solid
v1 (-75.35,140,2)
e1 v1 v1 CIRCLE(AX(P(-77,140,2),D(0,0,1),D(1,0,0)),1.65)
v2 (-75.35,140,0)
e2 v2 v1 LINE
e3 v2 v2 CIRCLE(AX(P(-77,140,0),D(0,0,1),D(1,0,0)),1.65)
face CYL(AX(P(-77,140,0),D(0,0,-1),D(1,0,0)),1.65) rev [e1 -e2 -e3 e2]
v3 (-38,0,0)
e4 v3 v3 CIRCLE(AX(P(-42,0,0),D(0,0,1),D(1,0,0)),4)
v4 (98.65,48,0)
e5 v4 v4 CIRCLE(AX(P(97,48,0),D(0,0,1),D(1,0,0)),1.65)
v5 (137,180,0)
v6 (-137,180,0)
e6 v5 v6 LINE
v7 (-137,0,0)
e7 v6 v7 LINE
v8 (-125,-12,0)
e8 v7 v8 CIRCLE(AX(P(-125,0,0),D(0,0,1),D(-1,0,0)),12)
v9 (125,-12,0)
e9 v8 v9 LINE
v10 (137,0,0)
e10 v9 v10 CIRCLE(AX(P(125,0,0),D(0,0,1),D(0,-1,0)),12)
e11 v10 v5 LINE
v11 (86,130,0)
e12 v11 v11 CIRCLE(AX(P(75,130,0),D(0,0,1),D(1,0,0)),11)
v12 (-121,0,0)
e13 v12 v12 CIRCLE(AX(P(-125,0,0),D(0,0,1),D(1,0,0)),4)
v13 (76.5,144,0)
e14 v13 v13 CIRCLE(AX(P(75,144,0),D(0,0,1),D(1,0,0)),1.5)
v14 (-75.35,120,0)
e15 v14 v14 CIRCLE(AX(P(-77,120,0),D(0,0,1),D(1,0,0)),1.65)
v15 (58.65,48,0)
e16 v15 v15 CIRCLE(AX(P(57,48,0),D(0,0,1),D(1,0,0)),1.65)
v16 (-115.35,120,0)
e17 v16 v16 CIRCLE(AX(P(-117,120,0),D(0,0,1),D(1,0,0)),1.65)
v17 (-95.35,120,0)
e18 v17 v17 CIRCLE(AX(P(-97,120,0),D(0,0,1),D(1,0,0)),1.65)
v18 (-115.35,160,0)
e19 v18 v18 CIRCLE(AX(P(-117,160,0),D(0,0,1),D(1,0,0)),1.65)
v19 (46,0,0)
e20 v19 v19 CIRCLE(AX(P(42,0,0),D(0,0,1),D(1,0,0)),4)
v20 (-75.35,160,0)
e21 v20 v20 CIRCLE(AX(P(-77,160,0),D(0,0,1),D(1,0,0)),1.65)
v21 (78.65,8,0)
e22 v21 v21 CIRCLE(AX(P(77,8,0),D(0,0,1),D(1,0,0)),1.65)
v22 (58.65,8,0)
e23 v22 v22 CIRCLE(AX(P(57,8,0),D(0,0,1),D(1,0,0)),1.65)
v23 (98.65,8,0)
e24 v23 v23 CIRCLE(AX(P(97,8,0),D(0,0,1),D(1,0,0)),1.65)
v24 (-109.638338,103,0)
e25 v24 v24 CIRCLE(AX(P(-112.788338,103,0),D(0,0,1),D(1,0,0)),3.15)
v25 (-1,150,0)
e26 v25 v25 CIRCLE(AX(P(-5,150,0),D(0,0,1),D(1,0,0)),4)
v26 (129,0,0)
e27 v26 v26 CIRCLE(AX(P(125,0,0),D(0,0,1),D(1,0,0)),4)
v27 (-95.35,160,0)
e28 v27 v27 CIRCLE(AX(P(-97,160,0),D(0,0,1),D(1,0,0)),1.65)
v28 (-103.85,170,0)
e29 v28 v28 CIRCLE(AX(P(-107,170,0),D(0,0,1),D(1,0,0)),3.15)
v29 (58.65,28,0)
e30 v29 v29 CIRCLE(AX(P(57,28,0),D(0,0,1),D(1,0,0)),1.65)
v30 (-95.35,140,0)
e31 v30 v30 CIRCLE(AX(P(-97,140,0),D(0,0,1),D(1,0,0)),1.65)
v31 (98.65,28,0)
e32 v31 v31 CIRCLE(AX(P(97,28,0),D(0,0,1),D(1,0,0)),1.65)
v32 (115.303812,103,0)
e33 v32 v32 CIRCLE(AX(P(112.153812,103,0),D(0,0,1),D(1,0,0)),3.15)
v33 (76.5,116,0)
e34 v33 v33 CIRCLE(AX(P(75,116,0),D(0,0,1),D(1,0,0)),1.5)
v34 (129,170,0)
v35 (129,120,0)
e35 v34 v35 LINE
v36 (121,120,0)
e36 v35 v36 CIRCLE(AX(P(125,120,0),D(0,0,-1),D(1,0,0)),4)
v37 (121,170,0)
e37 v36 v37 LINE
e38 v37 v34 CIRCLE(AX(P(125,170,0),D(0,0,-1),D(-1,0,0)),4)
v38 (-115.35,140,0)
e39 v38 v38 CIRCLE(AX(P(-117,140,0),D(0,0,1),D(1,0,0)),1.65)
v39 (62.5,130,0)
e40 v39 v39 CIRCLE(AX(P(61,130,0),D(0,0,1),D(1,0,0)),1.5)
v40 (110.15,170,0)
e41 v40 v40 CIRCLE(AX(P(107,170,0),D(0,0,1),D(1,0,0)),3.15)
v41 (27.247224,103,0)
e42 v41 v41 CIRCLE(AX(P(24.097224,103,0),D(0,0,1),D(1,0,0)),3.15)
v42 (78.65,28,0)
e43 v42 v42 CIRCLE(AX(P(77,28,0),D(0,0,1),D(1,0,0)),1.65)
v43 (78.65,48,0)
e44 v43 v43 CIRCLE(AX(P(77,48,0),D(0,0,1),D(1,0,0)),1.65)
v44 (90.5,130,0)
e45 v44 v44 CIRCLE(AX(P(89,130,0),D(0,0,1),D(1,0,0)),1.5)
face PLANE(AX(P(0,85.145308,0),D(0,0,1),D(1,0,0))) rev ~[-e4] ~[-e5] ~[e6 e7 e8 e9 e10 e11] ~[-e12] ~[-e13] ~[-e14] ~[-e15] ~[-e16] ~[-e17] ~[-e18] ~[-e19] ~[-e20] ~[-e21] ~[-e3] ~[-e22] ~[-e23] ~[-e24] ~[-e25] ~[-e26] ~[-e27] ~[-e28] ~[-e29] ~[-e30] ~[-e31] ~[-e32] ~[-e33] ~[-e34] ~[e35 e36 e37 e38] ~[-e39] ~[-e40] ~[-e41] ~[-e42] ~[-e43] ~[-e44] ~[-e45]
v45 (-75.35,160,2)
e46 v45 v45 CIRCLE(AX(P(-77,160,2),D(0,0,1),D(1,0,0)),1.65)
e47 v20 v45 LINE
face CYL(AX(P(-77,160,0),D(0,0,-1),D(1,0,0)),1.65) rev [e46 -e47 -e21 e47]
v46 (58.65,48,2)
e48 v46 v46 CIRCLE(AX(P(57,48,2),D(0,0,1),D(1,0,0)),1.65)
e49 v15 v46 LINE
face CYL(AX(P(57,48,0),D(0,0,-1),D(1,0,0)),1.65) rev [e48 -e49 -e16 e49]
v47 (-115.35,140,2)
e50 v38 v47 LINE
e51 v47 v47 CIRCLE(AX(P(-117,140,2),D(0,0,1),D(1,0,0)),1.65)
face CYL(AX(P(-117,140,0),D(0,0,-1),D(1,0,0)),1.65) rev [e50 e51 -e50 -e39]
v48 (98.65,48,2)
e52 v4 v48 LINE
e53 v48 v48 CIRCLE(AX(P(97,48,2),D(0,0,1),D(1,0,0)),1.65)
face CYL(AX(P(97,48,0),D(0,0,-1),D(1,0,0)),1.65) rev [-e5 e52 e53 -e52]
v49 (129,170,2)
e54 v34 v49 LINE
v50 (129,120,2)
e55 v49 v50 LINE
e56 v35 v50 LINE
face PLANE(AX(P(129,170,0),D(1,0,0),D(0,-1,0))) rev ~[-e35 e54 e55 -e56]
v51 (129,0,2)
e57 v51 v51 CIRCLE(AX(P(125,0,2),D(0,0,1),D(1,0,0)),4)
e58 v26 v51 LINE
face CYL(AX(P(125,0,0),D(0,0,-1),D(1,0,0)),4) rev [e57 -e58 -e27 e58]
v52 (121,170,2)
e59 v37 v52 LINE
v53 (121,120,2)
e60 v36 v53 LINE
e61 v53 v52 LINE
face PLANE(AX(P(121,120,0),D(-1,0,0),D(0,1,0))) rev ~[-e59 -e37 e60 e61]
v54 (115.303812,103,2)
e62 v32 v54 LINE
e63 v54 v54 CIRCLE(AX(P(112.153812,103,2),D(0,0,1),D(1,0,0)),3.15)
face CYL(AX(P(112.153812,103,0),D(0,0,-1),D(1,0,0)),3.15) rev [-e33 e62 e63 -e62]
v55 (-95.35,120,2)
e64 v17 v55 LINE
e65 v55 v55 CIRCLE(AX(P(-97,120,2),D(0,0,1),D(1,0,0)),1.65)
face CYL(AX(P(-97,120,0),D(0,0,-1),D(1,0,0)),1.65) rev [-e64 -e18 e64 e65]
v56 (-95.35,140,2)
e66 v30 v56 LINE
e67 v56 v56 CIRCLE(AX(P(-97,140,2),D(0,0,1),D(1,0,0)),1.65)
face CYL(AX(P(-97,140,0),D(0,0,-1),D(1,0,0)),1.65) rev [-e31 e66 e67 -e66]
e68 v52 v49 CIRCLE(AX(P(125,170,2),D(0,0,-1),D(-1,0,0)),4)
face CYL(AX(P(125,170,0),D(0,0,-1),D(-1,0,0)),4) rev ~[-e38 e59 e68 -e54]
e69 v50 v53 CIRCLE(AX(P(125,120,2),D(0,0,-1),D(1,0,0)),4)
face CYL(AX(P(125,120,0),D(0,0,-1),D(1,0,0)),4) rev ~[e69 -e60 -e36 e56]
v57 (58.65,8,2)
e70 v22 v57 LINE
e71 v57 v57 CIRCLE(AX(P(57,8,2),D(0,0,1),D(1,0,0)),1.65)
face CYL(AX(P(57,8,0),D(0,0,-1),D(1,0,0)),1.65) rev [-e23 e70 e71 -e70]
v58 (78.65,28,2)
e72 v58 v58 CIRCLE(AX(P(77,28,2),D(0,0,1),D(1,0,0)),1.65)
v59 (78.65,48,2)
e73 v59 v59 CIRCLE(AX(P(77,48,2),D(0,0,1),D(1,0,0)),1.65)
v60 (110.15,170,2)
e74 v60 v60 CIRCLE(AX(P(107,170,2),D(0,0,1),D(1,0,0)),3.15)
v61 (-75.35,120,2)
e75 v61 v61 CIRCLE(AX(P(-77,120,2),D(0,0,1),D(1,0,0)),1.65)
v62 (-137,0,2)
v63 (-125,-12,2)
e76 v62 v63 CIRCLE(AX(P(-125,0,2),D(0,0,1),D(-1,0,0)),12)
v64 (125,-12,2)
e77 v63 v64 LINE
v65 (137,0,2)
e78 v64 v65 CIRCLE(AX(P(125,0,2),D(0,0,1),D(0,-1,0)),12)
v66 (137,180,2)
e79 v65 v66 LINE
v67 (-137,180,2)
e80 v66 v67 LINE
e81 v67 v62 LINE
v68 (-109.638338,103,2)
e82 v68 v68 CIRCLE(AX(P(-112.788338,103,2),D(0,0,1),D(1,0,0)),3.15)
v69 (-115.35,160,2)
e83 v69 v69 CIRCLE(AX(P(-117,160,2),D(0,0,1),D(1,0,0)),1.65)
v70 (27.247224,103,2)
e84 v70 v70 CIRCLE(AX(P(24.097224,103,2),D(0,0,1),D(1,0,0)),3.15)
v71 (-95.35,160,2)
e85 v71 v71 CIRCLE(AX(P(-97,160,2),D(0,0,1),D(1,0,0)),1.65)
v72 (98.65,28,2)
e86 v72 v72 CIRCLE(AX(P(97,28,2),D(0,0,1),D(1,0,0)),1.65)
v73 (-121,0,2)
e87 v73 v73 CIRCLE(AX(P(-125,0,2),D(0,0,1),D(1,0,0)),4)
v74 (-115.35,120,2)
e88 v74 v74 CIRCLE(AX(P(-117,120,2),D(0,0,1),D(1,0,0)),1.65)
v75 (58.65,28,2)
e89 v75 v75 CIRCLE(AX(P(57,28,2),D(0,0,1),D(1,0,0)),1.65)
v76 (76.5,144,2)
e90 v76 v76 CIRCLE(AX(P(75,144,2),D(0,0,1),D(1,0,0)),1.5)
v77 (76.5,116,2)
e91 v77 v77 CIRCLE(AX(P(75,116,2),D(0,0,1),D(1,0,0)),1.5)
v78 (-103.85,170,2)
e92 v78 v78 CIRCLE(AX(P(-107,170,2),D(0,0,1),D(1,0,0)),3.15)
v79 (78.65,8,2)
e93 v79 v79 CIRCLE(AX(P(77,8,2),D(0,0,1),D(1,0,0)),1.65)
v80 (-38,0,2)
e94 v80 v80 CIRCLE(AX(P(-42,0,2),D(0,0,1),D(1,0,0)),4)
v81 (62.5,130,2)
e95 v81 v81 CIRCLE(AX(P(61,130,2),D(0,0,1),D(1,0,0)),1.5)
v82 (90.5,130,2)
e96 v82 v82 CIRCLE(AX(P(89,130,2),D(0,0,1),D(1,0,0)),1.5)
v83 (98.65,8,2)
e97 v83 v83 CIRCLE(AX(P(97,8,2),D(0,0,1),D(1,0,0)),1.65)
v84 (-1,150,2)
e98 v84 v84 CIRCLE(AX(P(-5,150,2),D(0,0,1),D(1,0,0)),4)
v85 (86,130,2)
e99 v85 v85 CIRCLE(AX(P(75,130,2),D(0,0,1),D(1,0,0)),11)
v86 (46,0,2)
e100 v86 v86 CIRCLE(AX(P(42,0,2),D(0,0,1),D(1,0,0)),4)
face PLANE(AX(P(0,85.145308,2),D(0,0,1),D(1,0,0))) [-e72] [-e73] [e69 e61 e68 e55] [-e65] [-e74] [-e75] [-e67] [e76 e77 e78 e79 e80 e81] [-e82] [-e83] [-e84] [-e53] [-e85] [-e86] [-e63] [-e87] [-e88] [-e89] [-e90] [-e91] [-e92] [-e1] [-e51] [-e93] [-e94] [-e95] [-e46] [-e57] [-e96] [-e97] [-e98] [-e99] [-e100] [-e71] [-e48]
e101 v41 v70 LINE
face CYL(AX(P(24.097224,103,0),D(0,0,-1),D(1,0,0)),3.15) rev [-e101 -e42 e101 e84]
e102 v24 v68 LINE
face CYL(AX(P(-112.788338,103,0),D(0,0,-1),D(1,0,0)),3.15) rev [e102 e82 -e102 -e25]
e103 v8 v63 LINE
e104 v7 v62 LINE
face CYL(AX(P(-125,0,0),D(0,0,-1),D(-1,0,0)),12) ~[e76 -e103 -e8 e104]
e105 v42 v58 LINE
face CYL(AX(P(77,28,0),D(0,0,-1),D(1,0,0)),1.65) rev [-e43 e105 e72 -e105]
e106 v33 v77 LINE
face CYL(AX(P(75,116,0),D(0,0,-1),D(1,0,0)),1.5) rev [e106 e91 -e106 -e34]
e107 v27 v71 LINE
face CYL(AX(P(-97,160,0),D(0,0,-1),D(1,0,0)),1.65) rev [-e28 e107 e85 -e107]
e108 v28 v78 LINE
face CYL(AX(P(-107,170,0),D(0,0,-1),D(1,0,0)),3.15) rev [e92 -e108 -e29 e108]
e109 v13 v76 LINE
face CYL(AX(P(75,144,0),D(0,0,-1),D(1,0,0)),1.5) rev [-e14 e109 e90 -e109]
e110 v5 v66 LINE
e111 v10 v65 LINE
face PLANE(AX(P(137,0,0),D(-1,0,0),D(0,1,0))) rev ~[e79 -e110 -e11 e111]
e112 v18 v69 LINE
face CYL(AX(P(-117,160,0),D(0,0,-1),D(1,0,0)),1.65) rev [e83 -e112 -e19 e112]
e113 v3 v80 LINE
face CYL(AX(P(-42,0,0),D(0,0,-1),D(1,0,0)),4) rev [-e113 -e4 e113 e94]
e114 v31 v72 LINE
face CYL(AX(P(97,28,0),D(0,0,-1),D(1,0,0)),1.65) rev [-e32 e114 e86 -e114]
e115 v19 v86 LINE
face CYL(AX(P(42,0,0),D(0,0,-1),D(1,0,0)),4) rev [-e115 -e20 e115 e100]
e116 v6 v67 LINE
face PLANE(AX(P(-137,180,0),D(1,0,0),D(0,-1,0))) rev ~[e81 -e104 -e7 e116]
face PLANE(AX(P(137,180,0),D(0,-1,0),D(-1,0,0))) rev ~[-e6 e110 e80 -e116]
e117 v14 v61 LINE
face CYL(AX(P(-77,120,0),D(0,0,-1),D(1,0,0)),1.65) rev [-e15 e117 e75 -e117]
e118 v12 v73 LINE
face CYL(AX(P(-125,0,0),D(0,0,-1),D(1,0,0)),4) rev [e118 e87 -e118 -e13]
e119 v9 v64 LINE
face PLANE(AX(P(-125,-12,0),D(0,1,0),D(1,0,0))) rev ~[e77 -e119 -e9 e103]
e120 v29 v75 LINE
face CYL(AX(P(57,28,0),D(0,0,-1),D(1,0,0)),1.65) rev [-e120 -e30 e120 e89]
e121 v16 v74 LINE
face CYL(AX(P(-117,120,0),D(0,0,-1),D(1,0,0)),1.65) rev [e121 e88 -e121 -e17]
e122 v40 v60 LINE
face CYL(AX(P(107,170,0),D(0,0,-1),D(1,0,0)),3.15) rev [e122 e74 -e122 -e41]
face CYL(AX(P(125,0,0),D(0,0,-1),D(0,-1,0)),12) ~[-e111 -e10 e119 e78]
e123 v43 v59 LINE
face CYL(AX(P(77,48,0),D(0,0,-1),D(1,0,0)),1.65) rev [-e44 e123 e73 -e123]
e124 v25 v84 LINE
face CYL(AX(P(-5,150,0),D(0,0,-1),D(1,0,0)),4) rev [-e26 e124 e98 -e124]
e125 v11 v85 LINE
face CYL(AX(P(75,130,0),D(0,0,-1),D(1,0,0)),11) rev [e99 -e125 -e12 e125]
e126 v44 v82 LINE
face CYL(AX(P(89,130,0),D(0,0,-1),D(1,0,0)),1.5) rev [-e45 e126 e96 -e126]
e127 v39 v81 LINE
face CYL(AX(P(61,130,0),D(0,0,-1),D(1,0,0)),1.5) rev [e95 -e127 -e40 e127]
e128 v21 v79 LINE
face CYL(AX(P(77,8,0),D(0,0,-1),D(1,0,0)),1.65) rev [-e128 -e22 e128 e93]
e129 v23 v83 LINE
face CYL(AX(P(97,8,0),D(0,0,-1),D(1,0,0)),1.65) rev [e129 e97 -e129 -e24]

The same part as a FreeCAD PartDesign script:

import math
import FreeCAD as App
import Part
import Sketcher
from FreeCAD import Vector

doc = App.newDocument("Part")
body = doc.addObject("PartDesign::Body", "Body")

# Sketch on XY plane
sketch1 = body.newObject("Sketcher::SketchObject", "Sketch")
sketch1.AttachmentSupport = (doc.getObject("XY_Plane"), [""])
sketch1.MapMode = "FlatFace"
sketch1.addGeometry([
    Part.ArcOfCircle(Part.Circle(Vector(-125, 0, 0), Vector(0, 0, 1), 12), math.radians(-180), math.radians(-90)),  # 0
    Part.LineSegment(Vector(-125, -12, 0), Vector(125, -12, 0)),  # 1
    Part.ArcOfCircle(Part.Circle(Vector(125, 0, 0), Vector(0, 0, 1), 12), math.radians(-90), math.radians(0)),  # 2
    Part.LineSegment(Vector(137, 0, 0), Vector(137, 180, 0)),  # 3
    Part.LineSegment(Vector(137, 180, 0), Vector(-137, 180, 0)),  # 4
    Part.LineSegment(Vector(-137, 180, 0), Vector(-137, 0, 0)),  # 5
    Part.Circle(Vector(-125, 0, 0), Vector(0, 0, 1), 4),  # 6
    Part.Circle(Vector(-42, 0, 0), Vector(0, 0, 1), 4),  # 7
    Part.Circle(Vector(42, 0, 0), Vector(0, 0, 1), 4),  # 8
    Part.Circle(Vector(57, 8, 0), Vector(0, 0, 1), 1.6),  # 9
    Part.Circle(Vector(57, 28, 0), Vector(0, 0, 1), 1.6),  # 10
    Part.Circle(Vector(77, 8, 0), Vector(0, 0, 1), 1.6),  # 11
    Part.Circle(Vector(125, 0, 0), Vector(0, 0, 1), 4),  # 12
    Part.Circle(Vector(97, 8, 0), Vector(0, 0, 1), 1.6),  # 13
    Part.Circle(Vector(77, 28, 0), Vector(0, 0, 1), 1.6),  # 14
    Part.Circle(Vector(97, 28, 0), Vector(0, 0, 1), 1.6),  # 15
    Part.Circle(Vector(57, 48, 0), Vector(0, 0, 1), 1.6),  # 16
    Part.Circle(Vector(77, 48, 0), Vector(0, 0, 1), 1.6),  # 17
    Part.Circle(Vector(97, 48, 0), Vector(0, 0, 1), 1.6),  # 18
    Part.Circle(Vector(-112.8, 103, 0), Vector(0, 0, 1), 3.1),  # 19
    Part.Circle(Vector(-117, 120, 0), Vector(0, 0, 1), 1.6),  # 20
    Part.Circle(Vector(-97, 120, 0), Vector(0, 0, 1), 1.6),  # 21
    Part.Circle(Vector(-77, 120, 0), Vector(0, 0, 1), 1.6),  # 22
    Part.Circle(Vector(-117, 140, 0), Vector(0, 0, 1), 1.6),  # 23
    Part.Circle(Vector(-97, 140, 0), Vector(0, 0, 1), 1.6),  # 24
    Part.Circle(Vector(-77, 140, 0), Vector(0, 0, 1), 1.6),  # 25
    Part.Circle(Vector(-117, 160, 0), Vector(0, 0, 1), 1.6),  # 26
    Part.Circle(Vector(-97, 160, 0), Vector(0, 0, 1), 1.6),  # 27
    Part.Circle(Vector(-107, 170, 0), Vector(0, 0, 1), 3.1),  # 28
    Part.Circle(Vector(-77, 160, 0), Vector(0, 0, 1), 1.6),  # 29
    Part.Circle(Vector(-5, 150, 0), Vector(0, 0, 1), 4),  # 30
    Part.Circle(Vector(24.1, 103, 0), Vector(0, 0, 1), 3.1),  # 31
    Part.Circle(Vector(112.2, 103, 0), Vector(0, 0, 1), 3.1),  # 32
    Part.Circle(Vector(75, 116, 0), Vector(0, 0, 1), 1.5),  # 33
    Part.Circle(Vector(61, 130, 0), Vector(0, 0, 1), 1.5),  # 34
    Part.Circle(Vector(75, 130, 0), Vector(0, 0, 1), 11),  # 35
    Part.Circle(Vector(89, 130, 0), Vector(0, 0, 1), 1.5),  # 36
    Part.Circle(Vector(75, 144, 0), Vector(0, 0, 1), 1.5),  # 37
    Part.LineSegment(Vector(129, 170, 0), Vector(129, 120, 0)),  # 38
    Part.ArcOfCircle(Part.Circle(Vector(125, 120, 0), Vector(0, 0, 1), 4), math.radians(180), math.radians(360)),  # 39
    Part.LineSegment(Vector(121, 120, 0), Vector(121, 170, 0)),  # 40
    Part.ArcOfCircle(Part.Circle(Vector(125, 170, 0), Vector(0, 0, 1), 4), math.radians(0), math.radians(180)),  # 41
    Part.Circle(Vector(107, 170, 0), Vector(0, 0, 1), 3.1),  # 42
], False)
sketch1.addConstraint([
    Sketcher.Constraint("Tangent", 0, 2, 1, 1),
    Sketcher.Constraint("Tangent", 1, 2, 2, 1),
    Sketcher.Constraint("Tangent", 2, 2, 3, 1),
    Sketcher.Constraint("Coincident", 3, 2, 4, 1),
    Sketcher.Constraint("Coincident", 4, 2, 5, 1),
    Sketcher.Constraint("Tangent", 5, 2, 0, 1),
    Sketcher.Constraint("Tangent", 38, 2, 39, 2),
    Sketcher.Constraint("Tangent", 39, 1, 40, 1),
    Sketcher.Constraint("Tangent", 40, 2, 41, 2),
    Sketcher.Constraint("Tangent", 41, 1, 38, 1),
    Sketcher.Constraint("Horizontal", 1),
    Sketcher.Constraint("Vertical", 3),
    Sketcher.Constraint("Horizontal", 4),
    Sketcher.Constraint("Vertical", 5),
    Sketcher.Constraint("Vertical", 38),
    Sketcher.Constraint("Vertical", 40),
    Sketcher.Constraint("Coincident", 6, 3, 0, 3),
    Sketcher.Constraint("Coincident", 12, 3, 2, 3),
    Sketcher.Constraint("Equal", 0, 2),
    Sketcher.Constraint("Equal", 6, 7),
    Sketcher.Constraint("Equal", 7, 8),
    Sketcher.Constraint("Equal", 9, 10),
    Sketcher.Constraint("Equal", 10, 11),
    Sketcher.Constraint("Equal", 8, 12),
    Sketcher.Constraint("Equal", 11, 13),
    Sketcher.Constraint("Equal", 13, 14),
    Sketcher.Constraint("Equal", 14, 15),
    Sketcher.Constraint("Equal", 15, 16),
    Sketcher.Constraint("Equal", 16, 17),
    Sketcher.Constraint("Equal", 17, 18),
    Sketcher.Constraint("Equal", 18, 20),
    Sketcher.Constraint("Equal", 20, 21),
    Sketcher.Constraint("Equal", 21, 22),
    Sketcher.Constraint("Equal", 22, 23),
    Sketcher.Constraint("Equal", 23, 24),
    Sketcher.Constraint("Equal", 24, 25),
    Sketcher.Constraint("Equal", 25, 26),
    Sketcher.Constraint("Equal", 26, 27),
    Sketcher.Constraint("Equal", 19, 28),
    Sketcher.Constraint("Equal", 27, 29),
    Sketcher.Constraint("Equal", 12, 30),
    Sketcher.Constraint("Equal", 28, 31),
    Sketcher.Constraint("Equal", 31, 32),
    Sketcher.Constraint("Equal", 33, 34),
    Sketcher.Constraint("Equal", 34, 36),
    Sketcher.Constraint("Equal", 36, 37),
    Sketcher.Constraint("Equal", 30, 39),
    Sketcher.Constraint("Equal", 32, 42),
    Sketcher.Constraint("Symmetric", 0, 3, 2, 3, -1, 1),
    Sketcher.Constraint("Symmetric", 7, 3, 8, 3, -1, 1),
    Sketcher.Constraint("Symmetric", 28, 3, 42, 3, -2),
    Sketcher.Constraint("PointOnObject", 7, 3, -1),
    Sketcher.Constraint("Horizontal", 9, 3, 11, 3),
    Sketcher.Constraint("Horizontal", 11, 3, 13, 3),
    Sketcher.Constraint("Horizontal", 10, 3, 14, 3),
    Sketcher.Constraint("Horizontal", 14, 3, 15, 3),
    Sketcher.Constraint("Horizontal", 16, 3, 17, 3),
    Sketcher.Constraint("Horizontal", 17, 3, 18, 3),
    Sketcher.Constraint("Horizontal", 20, 3, 21, 3),
    Sketcher.Constraint("Horizontal", 21, 3, 22, 3),
    Sketcher.Constraint("Horizontal", 23, 3, 24, 3),
    Sketcher.Constraint("Horizontal", 24, 3, 25, 3),
    Sketcher.Constraint("Horizontal", 26, 3, 27, 3),
    Sketcher.Constraint("Horizontal", 27, 3, 29, 3),
    Sketcher.Constraint("Horizontal", 19, 3, 31, 3),
    Sketcher.Constraint("Horizontal", 31, 3, 32, 3),
    Sketcher.Constraint("Horizontal", 34, 3, 35, 3),
    Sketcher.Constraint("Horizontal", 35, 3, 36, 3),
    Sketcher.Constraint("Horizontal", 22, 3, 39, 3),
    Sketcher.Constraint("Horizontal", 28, 3, 41, 3),
    Sketcher.Constraint("Vertical", 9, 3, 10, 3),
    Sketcher.Constraint("Vertical", 11, 3, 14, 3),
    Sketcher.Constraint("Vertical", 13, 3, 15, 3),
    Sketcher.Constraint("Vertical", 10, 3, 16, 3),
    Sketcher.Constraint("Vertical", 14, 3, 17, 3),
    Sketcher.Constraint("Vertical", 15, 3, 18, 3),
    Sketcher.Constraint("Vertical", 20, 3, 23, 3),
    Sketcher.Constraint("Vertical", 21, 3, 24, 3),
    Sketcher.Constraint("Vertical", 22, 3, 25, 3),
    Sketcher.Constraint("Vertical", 23, 3, 26, 3),
    Sketcher.Constraint("Vertical", 24, 3, 27, 3),
    Sketcher.Constraint("Vertical", 25, 3, 29, 3),
    Sketcher.Constraint("Vertical", 33, 3, 35, 3),
    Sketcher.Constraint("Vertical", 35, 3, 37, 3),
    Sketcher.Constraint("Vertical", 12, 3, 39, 3),
    Sketcher.Constraint("Diameter", 6, 8.0),
    Sketcher.Constraint("Diameter", 33, 3.0),
    Sketcher.Constraint("Diameter", 35, 22.0),
    Sketcher.Constraint("Radius", 0, 12.0),
    Sketcher.Constraint("Diameter", 9, 3.3),
    Sketcher.Constraint("Diameter", 19, 6.3),
    Sketcher.Constraint("DistanceX", 1, 1, 1, 2, 250.0),
    Sketcher.Constraint("DistanceY", 3, 1, 3, 2, 180.0),
    Sketcher.Constraint("DistanceY", 38, 2, 38, 1, 50.0),
    Sketcher.Constraint("DistanceX", 7, 3, -1, 1, 42.0),
    Sketcher.Constraint("DistanceX", -1, 1, 9, 3, 57.0),
    Sketcher.Constraint("DistanceY", -1, 1, 9, 3, 8.0),
    Sketcher.Constraint("DistanceY", -1, 1, 10, 3, 28.0),
    Sketcher.Constraint("DistanceX", -1, 1, 11, 3, 77.0),
    Sketcher.Constraint("DistanceX", -1, 1, 13, 3, 97.0),
    Sketcher.Constraint("DistanceY", -1, 1, 16, 3, 48.0),
    Sketcher.Constraint("DistanceY", -1, 1, 19, 3, 103.0),
    Sketcher.Constraint("DistanceX", 20, 3, -1, 1, 117.0),
    Sketcher.Constraint("DistanceY", -1, 1, 20, 3, 120.0),
    Sketcher.Constraint("DistanceX", 21, 3, -1, 1, 97.0),
    Sketcher.Constraint("DistanceX", 22, 3, -1, 1, 77.0),
    Sketcher.Constraint("DistanceY", -1, 1, 23, 3, 140.0),
    Sketcher.Constraint("DistanceY", -1, 1, 26, 3, 160.0),
    Sketcher.Constraint("DistanceX", 28, 3, -1, 1, 107.0),
    Sketcher.Constraint("DistanceX", 30, 3, -1, 1, 5.0),
    Sketcher.Constraint("DistanceY", -1, 1, 30, 3, 150.0),
    Sketcher.Constraint("DistanceX", -1, 1, 33, 3, 75.0),
    Sketcher.Constraint("DistanceY", -1, 1, 33, 3, 116.0),
    Sketcher.Constraint("DistanceX", -1, 1, 34, 3, 61.0),
    Sketcher.Constraint("DistanceY", -1, 1, 34, 3, 130.0),
    Sketcher.Constraint("DistanceX", -1, 1, 36, 3, 89.0),
    Sketcher.Constraint("DistanceY", -1, 1, 37, 3, 144.0),
    Sketcher.Constraint("DistanceX", 19, 3, -1, 1, 112.788338),
    Sketcher.Constraint("DistanceX", -1, 1, 32, 3, 112.153812),
    Sketcher.Constraint("DistanceX", -1, 1, 31, 3, 24.097224),
])
pad1 = body.newObject("PartDesign::Pad", "Pad")
pad1.Profile = sketch1
pad1.Length = 2

doc.recompute()
